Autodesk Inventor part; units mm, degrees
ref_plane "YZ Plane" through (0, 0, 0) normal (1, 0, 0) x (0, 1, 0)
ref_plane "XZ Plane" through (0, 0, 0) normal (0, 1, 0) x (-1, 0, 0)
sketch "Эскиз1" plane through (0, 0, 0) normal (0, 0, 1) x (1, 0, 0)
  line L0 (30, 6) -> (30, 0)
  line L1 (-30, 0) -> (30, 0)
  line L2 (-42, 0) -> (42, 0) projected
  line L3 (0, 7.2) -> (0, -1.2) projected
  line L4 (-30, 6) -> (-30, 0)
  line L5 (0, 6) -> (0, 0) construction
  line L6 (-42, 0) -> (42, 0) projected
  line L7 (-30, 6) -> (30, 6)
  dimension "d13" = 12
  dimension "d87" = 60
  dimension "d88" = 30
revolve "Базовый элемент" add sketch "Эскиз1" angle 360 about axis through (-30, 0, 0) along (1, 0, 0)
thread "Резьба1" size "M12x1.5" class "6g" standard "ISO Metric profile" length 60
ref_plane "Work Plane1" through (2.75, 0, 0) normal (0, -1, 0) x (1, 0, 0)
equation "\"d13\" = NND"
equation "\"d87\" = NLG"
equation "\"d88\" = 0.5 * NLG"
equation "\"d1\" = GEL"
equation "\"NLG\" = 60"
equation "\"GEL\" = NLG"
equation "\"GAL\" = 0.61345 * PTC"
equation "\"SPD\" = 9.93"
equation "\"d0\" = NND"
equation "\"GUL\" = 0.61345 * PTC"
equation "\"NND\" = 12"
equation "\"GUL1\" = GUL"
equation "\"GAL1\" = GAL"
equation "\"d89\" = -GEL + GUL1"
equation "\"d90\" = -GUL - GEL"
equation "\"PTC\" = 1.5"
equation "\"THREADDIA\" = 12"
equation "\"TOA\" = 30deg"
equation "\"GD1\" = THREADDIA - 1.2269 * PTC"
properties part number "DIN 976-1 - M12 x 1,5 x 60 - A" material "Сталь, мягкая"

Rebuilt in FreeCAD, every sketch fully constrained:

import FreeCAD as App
import Part
import Sketcher
Q = App.Units.Quantity

doc = App.newDocument("Part")
body = doc.addObject("PartDesign::Body", "Body")

sketch1 = doc.addObject("Sketcher::SketchObject", "Sketch")
body.addObject(sketch1)
sketch1.AttachmentSupport = (doc.XY_Plane, [""])
sketch1.MapMode = "FlatFace"
sketch1.addGeometry([
    Part.LineSegment(App.Vector(30, 0, 0), App.Vector(30, 6, 0)),
    Part.LineSegment(App.Vector(30, 6, 0), App.Vector(-30, 6, 0)),
    Part.LineSegment(App.Vector(-30, 6, 0), App.Vector(-30, 0, 0)),
    Part.LineSegment(App.Vector(-30, 0, 0), App.Vector(30, 0, 0)),
], False)
sketch1.addConstraint([
    Sketcher.Constraint("Coincident", 0, 2, 1, 1),
    Sketcher.Constraint("Coincident", 1, 2, 2, 1),
    Sketcher.Constraint("Coincident", 2, 2, 3, 1),
    Sketcher.Constraint("Coincident", 3, 2, 0, 1),
    Sketcher.Constraint("Vertical", 0),
    Sketcher.Constraint("Horizontal", 1),
    Sketcher.Constraint("Vertical", 2),
    Sketcher.Constraint("Horizontal", 3),
    Sketcher.Constraint("Symmetric", 2, 2, 3, 2, -1, 1),
    Sketcher.Constraint("DistanceX", 1, 2, 1, 1, Q("60 mm")),
    Sketcher.Constraint("DistanceY", 0, 1, 0, 2, Q("6 mm")),
])
revolution = doc.addObject("PartDesign::Revolution", "Revolution")
body.addObject(revolution)
revolution.Profile = sketch1
revolution.ReferenceAxis = (sketch1, ["H_Axis"])
revolution.Angle = 360

doc.recompute()
